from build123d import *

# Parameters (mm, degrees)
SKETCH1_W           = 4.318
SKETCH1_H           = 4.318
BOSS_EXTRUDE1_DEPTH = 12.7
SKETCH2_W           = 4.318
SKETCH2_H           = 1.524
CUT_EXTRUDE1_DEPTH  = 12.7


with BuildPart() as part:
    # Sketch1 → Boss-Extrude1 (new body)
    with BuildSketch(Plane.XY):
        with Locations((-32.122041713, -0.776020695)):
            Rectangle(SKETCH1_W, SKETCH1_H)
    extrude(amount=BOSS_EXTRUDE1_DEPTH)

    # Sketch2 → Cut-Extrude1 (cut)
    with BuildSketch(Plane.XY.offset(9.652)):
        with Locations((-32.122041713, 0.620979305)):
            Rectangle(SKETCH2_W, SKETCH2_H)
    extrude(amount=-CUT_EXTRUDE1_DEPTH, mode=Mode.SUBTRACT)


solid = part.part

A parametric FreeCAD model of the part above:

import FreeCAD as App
import Part
import Sketcher

V = App.Vector
Q = App.Units.Quantity


def add_polygon(sketch, points):
    """Adds a closed chain of lines whose ends are joined by coincident constraints."""
    first, n = sketch.GeometryCount, len(points)
    for a, b in zip(points, points[1:] + points[:1]):
        sketch.addGeometry(Part.LineSegment(App.Vector(*a, 0), App.Vector(*b, 0)), False)
    for i in range(n):
        sketch.addConstraint(Sketcher.Constraint("Coincident", first + i, 2, first + (i + 1) % n, 1))

doc = App.newDocument("Part")
body = doc.addObject("PartDesign::Body", "Body")

# Sketch on XY plane
sketch1 = body.newObject("Sketcher::SketchObject", "Sketch")
sketch1.AttachmentSupport = (doc.getObject("XY_Plane"), [""])
sketch1.MapMode = "FlatFace"
add_polygon(sketch1, [(-34.281042, 1.382979), (-34.281042, -2.935021), (-29.963042, -2.935021), (-29.963042, 1.382979)])  # lines 0-3
sketch1.addConstraint([
    Sketcher.Constraint("Vertical", 0),
    Sketcher.Constraint("Horizontal", 1),
    Sketcher.Constraint("Vertical", 2),
    Sketcher.Constraint("Horizontal", 3),
    Sketcher.Constraint("Equal", 3, 0),
    Sketcher.Constraint("DistanceX", 1, 1, 1, 2, Q("0.17 in")),
    Sketcher.Constraint("DistanceX", 0, 2, -1, 1, Q("34.281042 mm")),
    Sketcher.Constraint("DistanceY", 0, 2, -1, 1, Q("2.935021 mm")),
])
pad1 = body.newObject("PartDesign::Pad", "Pad")
pad1.Profile = sketch1
pad1.Length = Q("0.5 in")

# Sketch on XY plane
sketch2 = body.newObject("Sketcher::SketchObject", "Sketch001")
sketch2.AttachmentSupport = (doc.getObject("XY_Plane"), [""])
sketch2.MapMode = "FlatFace"
sketch2.AttachmentOffset = App.Placement(V(0, 0, 0.38 * 25.4), App.Rotation())
add_polygon(sketch2, [(-34.281042, 1.382979), (-34.281042, -0.141021), (-29.963042, -0.141021), (-29.963042, 1.382979)])  # lines 0-3
sketch2.addConstraint([
    Sketcher.Constraint("Vertical", 0),
    Sketcher.Constraint("Horizontal", 1),
    Sketcher.Constraint("Vertical", 2),
    Sketcher.Constraint("Horizontal", 3),
    Sketcher.Constraint("DistanceX", 1, 1, 1, 2, Q("0.17 in")),
    Sketcher.Constraint("DistanceY", 0, 2, 0, 1, Q("0.06 in")),
    Sketcher.Constraint("DistanceX", 0, 2, -1, 1, Q("34.281042 mm")),
    Sketcher.Constraint("DistanceY", 0, 2, -1, 1, Q("0.141021 mm")),
])
pocket1 = body.newObject("PartDesign::Pocket", "Pocket")
pocket1.Profile = sketch2
pocket1.Length = Q("0.5 in")

doc.recompute()
